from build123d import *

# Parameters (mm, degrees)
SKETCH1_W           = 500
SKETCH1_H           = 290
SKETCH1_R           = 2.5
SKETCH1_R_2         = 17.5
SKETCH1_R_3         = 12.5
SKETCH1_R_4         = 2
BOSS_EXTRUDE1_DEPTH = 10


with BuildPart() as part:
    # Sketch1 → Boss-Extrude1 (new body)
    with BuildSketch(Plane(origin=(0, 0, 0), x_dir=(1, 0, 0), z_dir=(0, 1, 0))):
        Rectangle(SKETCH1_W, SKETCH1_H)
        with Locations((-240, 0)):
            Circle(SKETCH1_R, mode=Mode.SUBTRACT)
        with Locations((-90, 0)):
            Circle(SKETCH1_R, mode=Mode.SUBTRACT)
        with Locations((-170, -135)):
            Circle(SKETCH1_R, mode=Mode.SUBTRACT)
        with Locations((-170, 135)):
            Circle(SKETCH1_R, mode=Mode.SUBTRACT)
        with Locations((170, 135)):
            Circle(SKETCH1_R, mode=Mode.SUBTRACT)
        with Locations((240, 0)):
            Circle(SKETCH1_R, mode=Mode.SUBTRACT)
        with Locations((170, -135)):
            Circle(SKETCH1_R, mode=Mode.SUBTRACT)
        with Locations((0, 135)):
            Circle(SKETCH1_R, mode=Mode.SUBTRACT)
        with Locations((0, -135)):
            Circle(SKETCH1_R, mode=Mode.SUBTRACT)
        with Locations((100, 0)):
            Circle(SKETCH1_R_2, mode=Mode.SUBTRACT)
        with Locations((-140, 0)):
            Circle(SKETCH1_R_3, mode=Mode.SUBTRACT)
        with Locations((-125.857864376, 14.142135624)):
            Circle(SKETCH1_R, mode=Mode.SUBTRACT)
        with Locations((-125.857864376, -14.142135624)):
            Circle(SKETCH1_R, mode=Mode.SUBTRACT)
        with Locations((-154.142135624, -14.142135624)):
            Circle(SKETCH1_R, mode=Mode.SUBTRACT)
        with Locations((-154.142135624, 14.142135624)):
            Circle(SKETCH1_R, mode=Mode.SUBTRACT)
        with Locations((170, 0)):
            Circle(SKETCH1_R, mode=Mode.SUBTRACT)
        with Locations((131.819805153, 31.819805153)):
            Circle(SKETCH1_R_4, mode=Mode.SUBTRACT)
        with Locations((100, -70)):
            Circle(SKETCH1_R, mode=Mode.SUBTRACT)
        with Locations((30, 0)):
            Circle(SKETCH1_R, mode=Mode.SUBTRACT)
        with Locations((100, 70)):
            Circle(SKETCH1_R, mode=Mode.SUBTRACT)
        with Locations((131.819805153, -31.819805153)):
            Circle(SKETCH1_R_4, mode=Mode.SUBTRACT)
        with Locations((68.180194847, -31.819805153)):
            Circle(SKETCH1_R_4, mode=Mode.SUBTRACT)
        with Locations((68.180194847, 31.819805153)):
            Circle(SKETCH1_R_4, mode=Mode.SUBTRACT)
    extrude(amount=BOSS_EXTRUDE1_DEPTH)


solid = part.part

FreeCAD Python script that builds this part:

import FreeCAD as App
import Part
import Sketcher
from FreeCAD import Vector

doc = App.newDocument("Part")
body = doc.addObject("PartDesign::Body", "Body")

sketch1 = doc.addObject("Sketcher::SketchObject", "Sketch")
body.addObject(sketch1)
sketch1.AttachmentSupport = (doc.XZ_Plane, [""])
sketch1.MapMode = "FlatFace"
sketch1.addGeometry([
    Part.LineSegment(Vector(-250, -145, 0), Vector(-250, 145, 0)),
    Part.LineSegment(Vector(-250, 145, 0), Vector(250, 145, 0)),
    Part.LineSegment(Vector(250, 145, 0), Vector(250, -145, 0)),
    Part.LineSegment(Vector(250, -145, 0), Vector(-250, -145, 0)),
    Part.Circle(Vector(-170, 135, 0), Vector(0, 0, 1), 2.5),
    Part.Circle(Vector(-154.142136, 14.142136, 0), Vector(0, 0, 1), 2.5),
    Part.Circle(Vector(-125.857864, 14.142136, 0), Vector(0, 0, 1), 2.5),
    Part.Circle(Vector(0, 135, 0), Vector(0, 0, 1), 2.5),
    Part.Circle(Vector(100, 70, 0), Vector(0, 0, 1), 2.5),
    Part.Circle(Vector(170, 135, 0), Vector(0, 0, 1), 2.5),
    Part.Circle(Vector(68.180195, 31.819805, 0), Vector(0, 0, 1), 2),
    Part.Circle(Vector(131.819805, 31.819805, 0), Vector(0, 0, 1), 2),
    Part.Circle(Vector(-240, 0, 0), Vector(0, 0, 1), 2.5),
    Part.Circle(Vector(-154.142136, -14.142136, 0), Vector(0, 0, 1), 2.5),
    Part.Circle(Vector(-140, 0, 0), Vector(0, 0, 1), 12.5),
    Part.Circle(Vector(-125.857864, -14.142136, 0), Vector(0, 0, 1), 2.5),
    Part.Circle(Vector(-90, 0, 0), Vector(0, 0, 1), 2.5),
    Part.Circle(Vector(-170, -135, 0), Vector(0, 0, 1), 2.5),
    Part.Circle(Vector(30, 0, 0), Vector(0, 0, 1), 2.5),
    Part.Circle(Vector(100, 0, 0), Vector(0, 0, 1), 17.5),
    Part.Circle(Vector(68.180195, -31.819805, 0), Vector(0, 0, 1), 2),
    Part.Circle(Vector(170, 0, 0), Vector(0, 0, 1), 2.5),
    Part.Circle(Vector(131.819805, -31.819805, 0), Vector(0, 0, 1), 2),
    Part.Circle(Vector(240, 0, 0), Vector(0, 0, 1), 2.5),
    Part.Circle(Vector(100, -70, 0), Vector(0, 0, 1), 2.5),
    Part.Circle(Vector(0, -135, 0), Vector(0, 0, 1), 2.5),
    Part.Circle(Vector(170, -135, 0), Vector(0, 0, 1), 2.5),
], False)
sketch1.addConstraint([
    Sketcher.Constraint("Coincident", 0, 2, 1, 1),
    Sketcher.Constraint("Coincident", 1, 2, 2, 1),
    Sketcher.Constraint("Coincident", 2, 2, 3, 1),
    Sketcher.Constraint("Coincident", 3, 2, 0, 1),
    Sketcher.Constraint("Vertical", 0),
    Sketcher.Constraint("Horizontal", 1),
    Sketcher.Constraint("Vertical", 2),
    Sketcher.Constraint("Horizontal", 3),
    Sketcher.Constraint("Equal", 4, 5),
    Sketcher.Constraint("Equal", 5, 6),
    Sketcher.Constraint("Equal", 6, 7),
    Sketcher.Constraint("Equal", 7, 8),
    Sketcher.Constraint("Equal", 8, 9),
    Sketcher.Constraint("Equal", 10, 11),
    Sketcher.Constraint("Equal", 9, 12),
    Sketcher.Constraint("Equal", 12, 13),
    Sketcher.Constraint("Equal", 13, 15),
    Sketcher.Constraint("Equal", 15, 16),
    Sketcher.Constraint("Equal", 16, 17),
    Sketcher.Constraint("Equal", 17, 18),
    Sketcher.Constraint("Equal", 11, 20),
    Sketcher.Constraint("Equal", 18, 21),
    Sketcher.Constraint("Equal", 20, 22),
    Sketcher.Constraint("Equal", 21, 23),
    Sketcher.Constraint("Equal", 23, 24),
    Sketcher.Constraint("Equal", 24, 25),
    Sketcher.Constraint("Equal", 25, 26),
    Sketcher.Constraint("Symmetric", 9, 3, 17, 3, -1, 1),
    Sketcher.Constraint("Symmetric", 12, 3, 23, 3, -1, 1),
    Sketcher.Constraint("Symmetric", 7, 3, 25, 3, -1, 1),
    Sketcher.Constraint("Symmetric", 4, 3, 26, 3, -1, 1),
    Sketcher.Constraint("Symmetric", 0, 2, 2, 2, -1, 1),
    Sketcher.Constraint("Symmetric", 4, 3, 9, 3, -2),
    Sketcher.Constraint("Symmetric", 5, 3, 13, 3, -1),
    Sketcher.Constraint("Symmetric", 6, 3, 15, 3, -1),
    Sketcher.Constraint("Symmetric", 10, 3, 20, 3, -1),
    Sketcher.Constraint("Symmetric", 11, 3, 22, 3, -1),
    Sketcher.Constraint("Symmetric", 8, 3, 24, 3, -1),
    Sketcher.Constraint("PointOnObject", 7, 3, -2),
    Sketcher.Constraint("PointOnObject", 12, 3, -1),
    Sketcher.Constraint("PointOnObject", 14, 3, -1),
    Sketcher.Constraint("PointOnObject", 16, 3, -1),
    Sketcher.Constraint("PointOnObject", 18, 3, -1),
    Sketcher.Constraint("PointOnObject", 19, 3, -1),
    Sketcher.Constraint("PointOnObject", 21, 3, -1),
    Sketcher.Constraint("Horizontal", 5, 3, 6, 3),
    Sketcher.Constraint("Horizontal", 4, 3, 7, 3),
    Sketcher.Constraint("Horizontal", 10, 3, 11, 3),
    Sketcher.Constraint("Vertical", 8, 3, 19, 3),
    Sketcher.Constraint("Vertical", 9, 3, 21, 3),
    Sketcher.Constraint("Diameter", 4, 5.0),
    Sketcher.Constraint("Diameter", 10, 4.0),
    Sketcher.Constraint("Diameter", 14, 25.0),
    Sketcher.Constraint("Diameter", 19, 35.0),
    Sketcher.Constraint("DistanceX", 1, 1, 1, 2, 500.0),
    Sketcher.Constraint("DistanceY", 0, 1, 0, 2, 290.0),
    Sketcher.Constraint("DistanceX", 4, 3, -1, 1, 170.0),
    Sketcher.Constraint("DistanceY", -1, 1, 4, 3, 135.0),
    Sketcher.Constraint("DistanceX", -1, 1, 8, 3, 100.0),
    Sketcher.Constraint("DistanceY", -1, 1, 8, 3, 70.0),
    Sketcher.Constraint("DistanceX", 12, 3, -1, 1, 240.0),
    Sketcher.Constraint("DistanceX", 14, 3, -1, 1, 140.0),
    Sketcher.Constraint("DistanceX", 16, 3, -1, 1, 90.0),
    Sketcher.Constraint("DistanceX", -1, 1, 18, 3, 30.0),
    Sketcher.Constraint("DistanceX", 5, 3, 6, 3, 28.284271),
    Sketcher.Constraint("DistanceX", 6, 3, 10, 3, 194.038059),
    Sketcher.Constraint("DistanceY", 6, 3, 10, 3, 17.67767),
    Sketcher.Constraint("DistanceX", 10, 3, 11, 3, 63.63961),
    Sketcher.Constraint("DistanceY", 13, 3, 5, 3, 28.284271),
    Sketcher.Constraint("DistanceX", 5, 3, -1, 1, 154.142136),
])
pad1 = doc.addObject("PartDesign::Pad", "Pad")
body.addObject(pad1)
pad1.Profile = sketch1
pad1.Length = 10
pad1.Reversed = True

doc.recompute()
